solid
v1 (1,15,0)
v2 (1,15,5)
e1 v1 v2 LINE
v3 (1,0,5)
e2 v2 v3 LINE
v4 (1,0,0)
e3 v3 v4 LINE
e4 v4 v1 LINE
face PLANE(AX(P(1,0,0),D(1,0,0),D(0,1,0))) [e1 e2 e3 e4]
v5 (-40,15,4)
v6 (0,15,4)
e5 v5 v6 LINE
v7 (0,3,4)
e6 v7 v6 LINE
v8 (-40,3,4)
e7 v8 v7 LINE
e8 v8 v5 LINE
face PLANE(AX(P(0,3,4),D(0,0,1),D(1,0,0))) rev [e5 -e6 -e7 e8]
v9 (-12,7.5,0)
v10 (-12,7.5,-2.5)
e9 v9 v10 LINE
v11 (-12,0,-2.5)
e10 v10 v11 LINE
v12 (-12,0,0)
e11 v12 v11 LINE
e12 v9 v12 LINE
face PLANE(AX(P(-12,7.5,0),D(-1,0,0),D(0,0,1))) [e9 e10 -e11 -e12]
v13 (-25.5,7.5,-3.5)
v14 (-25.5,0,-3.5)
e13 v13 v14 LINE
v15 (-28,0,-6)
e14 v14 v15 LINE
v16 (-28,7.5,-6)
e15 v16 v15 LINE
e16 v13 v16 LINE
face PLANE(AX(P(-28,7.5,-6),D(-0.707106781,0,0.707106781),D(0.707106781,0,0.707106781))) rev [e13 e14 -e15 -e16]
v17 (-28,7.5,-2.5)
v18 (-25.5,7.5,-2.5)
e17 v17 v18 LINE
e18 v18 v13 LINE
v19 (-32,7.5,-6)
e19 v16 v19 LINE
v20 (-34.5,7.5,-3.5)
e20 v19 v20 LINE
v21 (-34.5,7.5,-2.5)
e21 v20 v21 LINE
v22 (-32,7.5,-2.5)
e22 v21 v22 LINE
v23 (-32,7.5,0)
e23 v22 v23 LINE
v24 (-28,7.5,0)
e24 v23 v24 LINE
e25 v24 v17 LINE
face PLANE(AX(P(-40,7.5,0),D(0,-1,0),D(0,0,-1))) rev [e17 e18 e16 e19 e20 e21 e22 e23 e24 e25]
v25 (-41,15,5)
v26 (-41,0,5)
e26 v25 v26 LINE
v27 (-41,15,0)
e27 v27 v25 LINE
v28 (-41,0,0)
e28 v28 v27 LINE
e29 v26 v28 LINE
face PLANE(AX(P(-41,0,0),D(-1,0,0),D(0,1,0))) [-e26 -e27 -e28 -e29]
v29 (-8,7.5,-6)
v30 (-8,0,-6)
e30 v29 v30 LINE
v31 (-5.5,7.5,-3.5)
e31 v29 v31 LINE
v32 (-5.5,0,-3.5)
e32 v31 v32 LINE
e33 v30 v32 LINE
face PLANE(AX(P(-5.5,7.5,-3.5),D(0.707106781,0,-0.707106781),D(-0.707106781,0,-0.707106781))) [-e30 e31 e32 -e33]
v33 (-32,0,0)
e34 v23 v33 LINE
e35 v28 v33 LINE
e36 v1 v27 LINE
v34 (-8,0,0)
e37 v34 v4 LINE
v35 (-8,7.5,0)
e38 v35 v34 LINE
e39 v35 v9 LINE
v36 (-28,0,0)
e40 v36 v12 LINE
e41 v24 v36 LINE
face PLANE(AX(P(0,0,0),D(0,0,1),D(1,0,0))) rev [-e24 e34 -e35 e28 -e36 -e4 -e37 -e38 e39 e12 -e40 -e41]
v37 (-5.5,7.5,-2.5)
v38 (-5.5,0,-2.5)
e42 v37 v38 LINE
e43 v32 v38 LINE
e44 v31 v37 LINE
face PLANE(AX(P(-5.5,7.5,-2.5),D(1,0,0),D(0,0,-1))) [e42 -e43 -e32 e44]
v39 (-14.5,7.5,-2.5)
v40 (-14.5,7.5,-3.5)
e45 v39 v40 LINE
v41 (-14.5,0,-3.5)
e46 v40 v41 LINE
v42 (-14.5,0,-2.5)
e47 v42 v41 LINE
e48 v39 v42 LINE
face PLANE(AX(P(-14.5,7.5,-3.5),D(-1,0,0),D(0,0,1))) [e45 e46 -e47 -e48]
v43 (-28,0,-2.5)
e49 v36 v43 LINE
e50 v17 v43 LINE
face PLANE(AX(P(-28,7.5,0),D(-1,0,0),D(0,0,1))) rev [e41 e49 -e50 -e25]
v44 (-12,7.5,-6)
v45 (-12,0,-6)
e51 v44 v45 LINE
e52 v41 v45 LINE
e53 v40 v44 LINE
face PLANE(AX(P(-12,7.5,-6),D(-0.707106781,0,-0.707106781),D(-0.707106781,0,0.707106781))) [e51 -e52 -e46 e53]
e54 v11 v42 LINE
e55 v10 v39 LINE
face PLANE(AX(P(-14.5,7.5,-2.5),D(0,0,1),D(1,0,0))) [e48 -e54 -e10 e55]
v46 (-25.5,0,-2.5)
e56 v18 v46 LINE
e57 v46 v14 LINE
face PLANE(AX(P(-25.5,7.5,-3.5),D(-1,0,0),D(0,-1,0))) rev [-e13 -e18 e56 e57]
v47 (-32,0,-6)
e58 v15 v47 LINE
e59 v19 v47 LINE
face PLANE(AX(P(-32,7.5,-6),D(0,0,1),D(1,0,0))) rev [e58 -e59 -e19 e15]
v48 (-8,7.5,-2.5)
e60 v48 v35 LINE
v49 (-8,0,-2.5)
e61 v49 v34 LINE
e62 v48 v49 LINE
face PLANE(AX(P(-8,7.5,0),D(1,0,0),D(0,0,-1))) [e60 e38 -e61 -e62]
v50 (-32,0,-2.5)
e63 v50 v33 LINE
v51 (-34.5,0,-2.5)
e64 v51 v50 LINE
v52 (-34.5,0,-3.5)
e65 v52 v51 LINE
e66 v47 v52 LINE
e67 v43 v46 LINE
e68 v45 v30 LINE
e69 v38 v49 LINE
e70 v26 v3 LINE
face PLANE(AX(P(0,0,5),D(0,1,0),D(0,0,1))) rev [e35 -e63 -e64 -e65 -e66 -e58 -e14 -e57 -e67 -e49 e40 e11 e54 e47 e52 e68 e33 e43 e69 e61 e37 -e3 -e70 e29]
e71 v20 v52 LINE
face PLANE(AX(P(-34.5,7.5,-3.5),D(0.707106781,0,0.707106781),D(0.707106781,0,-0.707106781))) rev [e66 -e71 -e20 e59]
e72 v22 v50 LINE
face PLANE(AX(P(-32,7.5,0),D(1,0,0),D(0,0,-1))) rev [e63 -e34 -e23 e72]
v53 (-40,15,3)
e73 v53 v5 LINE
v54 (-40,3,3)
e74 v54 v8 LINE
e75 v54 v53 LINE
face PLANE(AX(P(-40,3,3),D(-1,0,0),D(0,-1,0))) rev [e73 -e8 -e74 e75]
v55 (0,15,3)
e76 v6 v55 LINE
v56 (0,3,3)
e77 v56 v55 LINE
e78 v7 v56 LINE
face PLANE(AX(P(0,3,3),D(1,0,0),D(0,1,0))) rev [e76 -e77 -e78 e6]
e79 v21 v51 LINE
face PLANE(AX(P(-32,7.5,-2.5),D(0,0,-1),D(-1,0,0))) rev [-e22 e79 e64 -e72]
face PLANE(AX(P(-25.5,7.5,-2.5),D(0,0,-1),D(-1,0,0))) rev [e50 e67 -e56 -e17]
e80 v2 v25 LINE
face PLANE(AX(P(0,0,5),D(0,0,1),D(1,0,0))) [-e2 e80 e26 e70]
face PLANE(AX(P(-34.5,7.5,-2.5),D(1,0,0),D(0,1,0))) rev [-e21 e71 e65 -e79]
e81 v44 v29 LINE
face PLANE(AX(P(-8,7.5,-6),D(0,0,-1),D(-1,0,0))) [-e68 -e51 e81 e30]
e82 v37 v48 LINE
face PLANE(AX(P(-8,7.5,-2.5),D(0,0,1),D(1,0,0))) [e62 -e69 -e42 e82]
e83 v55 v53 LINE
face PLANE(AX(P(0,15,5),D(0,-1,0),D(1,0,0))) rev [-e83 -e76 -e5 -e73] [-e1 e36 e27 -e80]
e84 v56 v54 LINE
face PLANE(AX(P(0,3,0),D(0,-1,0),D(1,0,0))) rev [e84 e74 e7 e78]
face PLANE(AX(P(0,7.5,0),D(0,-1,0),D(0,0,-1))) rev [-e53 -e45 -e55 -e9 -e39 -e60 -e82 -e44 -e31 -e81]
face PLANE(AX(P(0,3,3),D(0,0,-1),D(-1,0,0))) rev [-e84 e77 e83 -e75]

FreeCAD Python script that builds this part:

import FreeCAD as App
import Part
import Sketcher

V = App.Vector
Q = App.Units.Quantity


def add_polygon(sketch, points):
    """Adds a closed chain of lines whose ends are joined by coincident constraints."""
    first, n = sketch.GeometryCount, len(points)
    for a, b in zip(points, points[1:] + points[:1]):
        sketch.addGeometry(Part.LineSegment(App.Vector(*a, 0), App.Vector(*b, 0)), False)
    for i in range(n):
        sketch.addConstraint(Sketcher.Constraint("Coincident", first + i, 2, first + (i + 1) % n, 1))

doc = App.newDocument("Part")
body = doc.addObject("PartDesign::Body", "Body")

sketch1 = body.newObject("Sketcher::SketchObject", "Sketch")
sketch1.AttachmentSupport = (doc.getObject("XY_Plane"), [""])
sketch1.MapMode = "FlatFace"
add_polygon(sketch1, [(-40, 15), (-40, 0), (0, 0), (0, 15)])
sketch1.addConstraint(Sketcher.Constraint("Vertical", 0))
sketch1.addConstraint(Sketcher.Constraint("Horizontal", 1))
sketch1.addConstraint(Sketcher.Constraint("Vertical", 2))
sketch1.addConstraint(Sketcher.Constraint("Horizontal", 3))
sketch1.addConstraint(Sketcher.Constraint("Coincident", 1, 2, -1, 1))
sketch1.addConstraint(Sketcher.Constraint("DistanceX", 1, 1, 1, 2, Q("40 mm")))
sketch1.addConstraint(Sketcher.Constraint("DistanceY", 0, 2, 0, 1, Q("15 mm")))
pad1 = body.newObject("PartDesign::Pad", "Pad")
pad1.Profile = sketch1
pad1.Length = 5

sketch2 = body.newObject("Sketcher::SketchObject", "Sketch001")
sketch2.AttachmentSupport = (doc.getObject("XZ_Plane"), [""])
sketch2.MapMode = "FlatFace"
add_polygon(sketch2, [(-8, 0), (-12, 0), (-12, -2.5), (-14.5, -2.5), (-14.5, -3.5), (-12, -6), (-8, -6), (-5.5, -3.5), (-5.5, -2.5), (-8, -2.5)])
sketch2.addConstraint(Sketcher.Constraint("Horizontal", 0))
sketch2.addConstraint(Sketcher.Constraint("Vertical", 1))
sketch2.addConstraint(Sketcher.Constraint("Horizontal", 2))
sketch2.addConstraint(Sketcher.Constraint("Vertical", 3))
sketch2.addConstraint(Sketcher.Constraint("Horizontal", 5))
sketch2.addConstraint(Sketcher.Constraint("Vertical", 7))
sketch2.addConstraint(Sketcher.Constraint("Horizontal", 8))
sketch2.addConstraint(Sketcher.Constraint("Vertical", 9))
sketch2.addConstraint(Sketcher.Constraint("PointOnObject", 0, 2, -1))
sketch2.addConstraint(Sketcher.Constraint("Perpendicular", 4, 6))
sketch2.addConstraint(Sketcher.Constraint("Horizontal", 3, 2, 6, 2))
sketch2.addConstraint(Sketcher.Constraint("Horizontal", 2, 2, 7, 2))
sketch2.addConstraint(Sketcher.Constraint("Vertical", 1, 2, 4, 2))
sketch2.addConstraint(Sketcher.Constraint("Vertical", 5, 2, 8, 2))
sketch2.addConstraint(Sketcher.Constraint("Equal", 2, 8))
sketch2.addConstraint(Sketcher.Constraint("Equal", 8, 1))
sketch2.addConstraint(Sketcher.Constraint("DistanceX", 0, 2, 0, 1, Q("4 mm")))
sketch2.addConstraint(Sketcher.Constraint("DistanceY", 3, 2, 3, 1, Q("1 mm")))
sketch2.addConstraint(Sketcher.Constraint("DistanceX", 2, 2, 2, 1, Q("2.5 mm")))
sketch2.addConstraint(Sketcher.Constraint("DistanceX", 0, 2, -1, 1, Q("12 mm")))
pad2 = body.newObject("PartDesign::Pad", "Pad001")
pad2.Profile = sketch2
pad2.Length = 7.5
pad2.Reversed = True
doc.recompute()

datumplane = body.newObject("PartDesign::Plane", "DatumPlane")
datumplane.AttachmentSupport = (doc.getObject("YZ_Plane"), [""])
datumplane.MapMode = "FlatFace"
datumplane.AttachmentOffset = App.Placement(V(0, 0, -20), App.Rotation())
mirrored = body.newObject("PartDesign::Mirrored", "Mirrored")
mirrored.Originals = [pad2]
mirrored.MirrorPlane = (datumplane, [""])
body.Tip = mirrored

sketch3 = body.newObject("Sketcher::SketchObject", "Sketch002")
sketch3.AttachmentSupport = (doc.getObject("YZ_Plane"), [""])
sketch3.MapMode = "FlatFace"
add_polygon(sketch3, [(15, 5), (0, 5), (0, 0), (15, 0)])
sketch3.addConstraint(Sketcher.Constraint("Horizontal", 0))
sketch3.addConstraint(Sketcher.Constraint("Vertical", 1))
sketch3.addConstraint(Sketcher.Constraint("Horizontal", 2))
sketch3.addConstraint(Sketcher.Constraint("Vertical", 3))
sketch3.addConstraint(Sketcher.Constraint("Coincident", 1, 2, -1, 1))
sketch3.addConstraint(Sketcher.Constraint("DistanceX", 0, 2, 0, 1, Q("15 mm")))
sketch3.addConstraint(Sketcher.Constraint("DistanceY", 1, 2, 1, 1, Q("5 mm")))
pad3 = body.newObject("PartDesign::Pad", "Pad002")
pad3.Profile = sketch3
pad3.Length = 1
doc.recompute()

datumplane2 = body.newObject("PartDesign::Plane", "DatumPlane001")
datumplane2.AttachmentSupport = (doc.getObject("YZ_Plane"), [""])
datumplane2.MapMode = "FlatFace"
datumplane2.AttachmentOffset = App.Placement(V(0, 0, -20), App.Rotation())
mirrored2 = body.newObject("PartDesign::Mirrored", "Mirrored001")
mirrored2.Originals = [pad3]
mirrored2.MirrorPlane = (datumplane2, [""])
body.Tip = mirrored2

sketch4 = body.newObject("Sketcher::SketchObject", "Sketch003")
sketch4.AttachmentSupport = (doc.getObject("XZ_Plane"), [""])
sketch4.MapMode = "FlatFace"
sketch4.AttachmentOffset = App.Placement(V(0, 0, -15), App.Rotation())
add_polygon(sketch4, [(-40, 3), (-40, 4), (0, 4), (0, 3)])
sketch4.addConstraint(Sketcher.Constraint("Vertical", 0))
sketch4.addConstraint(Sketcher.Constraint("Horizontal", 1))
sketch4.addConstraint(Sketcher.Constraint("Vertical", 2))
sketch4.addConstraint(Sketcher.Constraint("Horizontal", 3))
sketch4.addConstraint(Sketcher.Constraint("PointOnObject", 1, 2, -2))
sketch4.addConstraint(Sketcher.Constraint("DistanceX", 1, 1, 1, 2, Q("40 mm")))
sketch4.addConstraint(Sketcher.Constraint("DistanceY", 0, 1, 0, 2, Q("1 mm")))
sketch4.addConstraint(Sketcher.Constraint("DistanceY", -1, 1, 0, 2, Q("4 mm")))
pocket1 = body.newObject("PartDesign::Pocket", "Pocket")
pocket1.Profile = sketch4
pocket1.Length = 12
pocket1.Reversed = True

doc.recompute()
